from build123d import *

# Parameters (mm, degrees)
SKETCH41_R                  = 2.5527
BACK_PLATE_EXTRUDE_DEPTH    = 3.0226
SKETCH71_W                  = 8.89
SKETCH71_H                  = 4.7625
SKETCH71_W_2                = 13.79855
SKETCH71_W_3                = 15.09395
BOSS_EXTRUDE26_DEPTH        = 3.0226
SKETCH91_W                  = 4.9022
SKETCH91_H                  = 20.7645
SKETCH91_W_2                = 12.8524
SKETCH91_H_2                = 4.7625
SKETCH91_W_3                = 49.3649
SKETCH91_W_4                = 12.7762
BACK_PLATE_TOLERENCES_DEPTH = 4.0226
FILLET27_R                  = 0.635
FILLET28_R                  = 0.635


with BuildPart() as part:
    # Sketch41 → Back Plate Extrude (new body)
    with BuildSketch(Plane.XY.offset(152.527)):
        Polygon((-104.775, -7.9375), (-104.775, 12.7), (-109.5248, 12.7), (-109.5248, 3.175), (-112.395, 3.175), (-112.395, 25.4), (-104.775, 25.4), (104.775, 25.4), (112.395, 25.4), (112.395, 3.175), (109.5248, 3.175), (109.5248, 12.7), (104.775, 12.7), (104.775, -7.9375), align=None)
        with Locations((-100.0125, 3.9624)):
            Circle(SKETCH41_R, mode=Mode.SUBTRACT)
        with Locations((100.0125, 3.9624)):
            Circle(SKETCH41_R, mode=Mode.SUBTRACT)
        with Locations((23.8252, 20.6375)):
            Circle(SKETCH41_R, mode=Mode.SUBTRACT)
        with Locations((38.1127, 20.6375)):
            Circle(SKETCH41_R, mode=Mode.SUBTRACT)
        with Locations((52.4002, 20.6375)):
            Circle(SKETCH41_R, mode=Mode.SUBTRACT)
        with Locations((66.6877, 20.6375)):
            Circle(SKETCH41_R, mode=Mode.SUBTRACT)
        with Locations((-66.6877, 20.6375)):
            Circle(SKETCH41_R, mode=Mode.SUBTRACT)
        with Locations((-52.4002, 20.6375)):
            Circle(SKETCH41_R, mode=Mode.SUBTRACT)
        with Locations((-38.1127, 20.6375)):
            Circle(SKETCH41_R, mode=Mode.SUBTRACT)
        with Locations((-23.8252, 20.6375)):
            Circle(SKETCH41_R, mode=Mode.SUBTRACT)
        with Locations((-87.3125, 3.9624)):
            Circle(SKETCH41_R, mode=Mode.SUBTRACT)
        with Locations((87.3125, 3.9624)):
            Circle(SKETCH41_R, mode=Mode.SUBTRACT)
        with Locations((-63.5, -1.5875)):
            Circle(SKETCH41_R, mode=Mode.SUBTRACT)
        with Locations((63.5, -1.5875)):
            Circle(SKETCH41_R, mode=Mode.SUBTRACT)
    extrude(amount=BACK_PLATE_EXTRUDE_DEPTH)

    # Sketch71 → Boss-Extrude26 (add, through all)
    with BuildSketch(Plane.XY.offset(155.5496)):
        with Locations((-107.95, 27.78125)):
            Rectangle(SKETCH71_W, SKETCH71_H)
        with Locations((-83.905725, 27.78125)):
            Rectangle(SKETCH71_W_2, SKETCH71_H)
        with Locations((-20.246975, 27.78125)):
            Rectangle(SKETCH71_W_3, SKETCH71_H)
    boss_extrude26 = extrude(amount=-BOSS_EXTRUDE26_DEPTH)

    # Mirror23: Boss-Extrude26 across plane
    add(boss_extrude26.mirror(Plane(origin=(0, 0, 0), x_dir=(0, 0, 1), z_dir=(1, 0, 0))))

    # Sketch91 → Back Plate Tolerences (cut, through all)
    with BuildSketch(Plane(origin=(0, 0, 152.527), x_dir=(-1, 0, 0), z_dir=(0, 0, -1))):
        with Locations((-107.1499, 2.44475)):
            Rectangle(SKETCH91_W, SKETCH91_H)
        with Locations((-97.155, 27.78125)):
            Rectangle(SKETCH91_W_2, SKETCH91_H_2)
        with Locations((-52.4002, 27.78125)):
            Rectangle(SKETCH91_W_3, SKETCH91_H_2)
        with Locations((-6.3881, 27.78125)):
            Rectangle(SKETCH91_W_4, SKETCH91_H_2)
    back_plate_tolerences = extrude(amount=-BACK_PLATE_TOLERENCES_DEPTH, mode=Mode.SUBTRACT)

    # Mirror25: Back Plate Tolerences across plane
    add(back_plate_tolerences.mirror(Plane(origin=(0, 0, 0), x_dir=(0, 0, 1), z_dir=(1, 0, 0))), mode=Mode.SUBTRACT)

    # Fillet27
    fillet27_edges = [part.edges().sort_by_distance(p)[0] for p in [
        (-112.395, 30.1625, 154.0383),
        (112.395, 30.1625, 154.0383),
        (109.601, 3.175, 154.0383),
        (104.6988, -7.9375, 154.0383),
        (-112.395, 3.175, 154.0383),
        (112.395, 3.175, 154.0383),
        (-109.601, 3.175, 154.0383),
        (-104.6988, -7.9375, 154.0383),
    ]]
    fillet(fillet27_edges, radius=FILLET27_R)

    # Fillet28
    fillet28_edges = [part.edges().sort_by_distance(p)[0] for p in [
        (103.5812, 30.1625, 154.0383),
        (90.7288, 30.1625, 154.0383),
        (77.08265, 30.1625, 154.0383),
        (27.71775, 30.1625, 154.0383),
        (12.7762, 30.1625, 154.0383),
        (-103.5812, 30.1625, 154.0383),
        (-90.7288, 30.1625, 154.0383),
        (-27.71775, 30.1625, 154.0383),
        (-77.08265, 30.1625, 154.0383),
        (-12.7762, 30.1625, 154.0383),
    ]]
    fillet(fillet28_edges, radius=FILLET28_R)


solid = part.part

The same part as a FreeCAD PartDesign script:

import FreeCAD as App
import Part
import Sketcher

V = App.Vector
Q = App.Units.Quantity


def edges_at(feature, points):
    """Names of the edges that pass closest to the given points."""
    edges = feature.Shape.Edges
    near = lambda p: min(range(len(edges)), key=lambda i: edges[i].distToShape(Part.Vertex(*p))[0])
    return sorted({f"Edge{near(p) + 1}" for p in points})

doc = App.newDocument("Part")
body = doc.addObject("PartDesign::Body", "Body")

# Sketch on XY plane
sketch1 = doc.addObject("Sketcher::SketchObject", "Sketch")
body.addObject(sketch1)
sketch1.AttachmentSupport = (doc.XY_Plane, [""])
sketch1.MapMode = "FlatFace"
sketch1.AttachmentOffset = App.Placement(V(0, 0, 6.005 * 25.4), App.Rotation())
sketch1.addGeometry([
    Part.LineSegment(V(-104.8, 12.7, 0), V(-104.8, -7.9, 0)),  # 0
    Part.LineSegment(V(-104.8, -7.9, 0), V(104.8, -7.9, 0)),  # 1
    Part.LineSegment(V(104.8, -7.9, 0), V(104.8, 12.7, 0)),  # 2
    Part.LineSegment(V(104.8, 12.7, 0), V(109.5, 12.7, 0)),  # 3
    Part.LineSegment(V(109.5, 12.7, 0), V(109.5, 3.2, 0)),  # 4
    Part.LineSegment(V(109.5, 3.2, 0), V(112.4, 3.2, 0)),  # 5
    Part.LineSegment(V(112.4, 3.2, 0), V(112.4, 25.4, 0)),  # 6
    Part.LineSegment(V(112.4, 25.4, 0), V(-112.4, 25.4, 0)),  # 7
    Part.LineSegment(V(-112.4, 25.4, 0), V(-112.4, 3.2, 0)),  # 8
    Part.LineSegment(V(-112.4, 3.2, 0), V(-109.5, 3.2, 0)),  # 9
    Part.LineSegment(V(-109.5, 3.2, 0), V(-109.5, 12.7, 0)),  # 10
    Part.LineSegment(V(-109.5, 12.7, 0), V(-104.8, 12.7, 0)),  # 11
    Part.Circle(V(63.5, -1.6, 0), V(0, 0, 1), 2.6),  # 12
    Part.Circle(V(100, 4, 0), V(0, 0, 1), 2.6),  # 13
    Part.Circle(V(87.3, 4, 0), V(0, 0, 1), 2.6),  # 14
    Part.Circle(V(-63.5, -1.6, 0), V(0, 0, 1), 2.6),  # 15
    Part.Circle(V(-87.3, 4, 0), V(0, 0, 1), 2.6),  # 16
    Part.Circle(V(-100, 4, 0), V(0, 0, 1), 2.6),  # 17
    Part.Circle(V(66.7, 20.6, 0), V(0, 0, 1), 2.6),  # 18
    Part.Circle(V(52.4, 20.6, 0), V(0, 0, 1), 2.6),  # 19
    Part.Circle(V(38.1, 20.6, 0), V(0, 0, 1), 2.6),  # 20
    Part.Circle(V(23.8, 20.6, 0), V(0, 0, 1), 2.6),  # 21
    Part.Circle(V(-23.8, 20.6, 0), V(0, 0, 1), 2.6),  # 22
    Part.Circle(V(-38.1, 20.6, 0), V(0, 0, 1), 2.6),  # 23
    Part.Circle(V(-52.4, 20.6, 0), V(0, 0, 1), 2.6),  # 24
    Part.Circle(V(-66.7, 20.6, 0), V(0, 0, 1), 2.6),  # 25
], False)
sketch1.addConstraint([
    Sketcher.Constraint("Coincident", 0, 2, 1, 1),
    Sketcher.Constraint("Coincident", 1, 2, 2, 1),
    Sketcher.Constraint("Coincident", 2, 2, 3, 1),
    Sketcher.Constraint("Coincident", 3, 2, 4, 1),
    Sketcher.Constraint("Coincident", 4, 2, 5, 1),
    Sketcher.Constraint("Coincident", 5, 2, 6, 1),
    Sketcher.Constraint("Coincident", 6, 2, 7, 1),
    Sketcher.Constraint("Coincident", 7, 2, 8, 1),
    Sketcher.Constraint("Coincident", 8, 2, 9, 1),
    Sketcher.Constraint("Coincident", 9, 2, 10, 1),
    Sketcher.Constraint("Coincident", 10, 2, 11, 1),
    Sketcher.Constraint("Coincident", 11, 2, 0, 1),
    Sketcher.Constraint("Vertical", 0),
    Sketcher.Constraint("Horizontal", 1),
    Sketcher.Constraint("Vertical", 2),
    Sketcher.Constraint("Horizontal", 3),
    Sketcher.Constraint("Vertical", 4),
    Sketcher.Constraint("Horizontal", 5),
    Sketcher.Constraint("Vertical", 6),
    Sketcher.Constraint("Horizontal", 7),
    Sketcher.Constraint("Vertical", 8),
    Sketcher.Constraint("Horizontal", 9),
    Sketcher.Constraint("Vertical", 10),
    Sketcher.Constraint("Horizontal", 11),
    Sketcher.Constraint("Equal", 12, 13),
    Sketcher.Constraint("Equal", 13, 14),
    Sketcher.Constraint("Equal", 14, 15),
    Sketcher.Constraint("Equal", 15, 16),
    Sketcher.Constraint("Equal", 16, 17),
    Sketcher.Constraint("Equal", 17, 18),
    Sketcher.Constraint("Equal", 18, 19),
    Sketcher.Constraint("Equal", 19, 20),
    Sketcher.Constraint("Equal", 20, 21),
    Sketcher.Constraint("Equal", 21, 22),
    Sketcher.Constraint("Equal", 22, 23),
    Sketcher.Constraint("Equal", 23, 24),
    Sketcher.Constraint("Equal", 24, 25),
    Sketcher.Constraint("Symmetric", 12, 3, 15, 3, -2),
    Sketcher.Constraint("Symmetric", 14, 3, 16, 3, -2),
    Sketcher.Constraint("Symmetric", 13, 3, 17, 3, -2),
    Sketcher.Constraint("Symmetric", 21, 3, 22, 3, -2),
    Sketcher.Constraint("Symmetric", 20, 3, 23, 3, -2),
    Sketcher.Constraint("Symmetric", 19, 3, 24, 3, -2),
    Sketcher.Constraint("Symmetric", 18, 3, 25, 3, -2),
    Sketcher.Constraint("Symmetric", 5, 2, 8, 2, -2),
    Sketcher.Constraint("Symmetric", 3, 2, 10, 2, -2),
    Sketcher.Constraint("Horizontal", 13, 3, 14, 3),
    Sketcher.Constraint("Horizontal", 18, 3, 19, 3),
    Sketcher.Constraint("Horizontal", 19, 3, 20, 3),
    Sketcher.Constraint("Horizontal", 20, 3, 21, 3),
    Sketcher.Constraint("Equal", 3, 11),
    Sketcher.Constraint("Diameter", 12, Q("0.201 in")),
    Sketcher.Constraint("DistanceY", -1, 1, 6, 2, Q("1 in")),
    Sketcher.Constraint("DistanceX", 15, 3, 12, 3, Q("5 in")),
    Sketcher.Constraint("DistanceX", 1, 1, 1, 2, Q("8.25 in")),
    Sketcher.Constraint("DistanceX", 7, 2, 7, 1, Q("8.85 in")),
    Sketcher.Constraint("DistanceY", -1, 1, 2, 2, Q("0.5 in")),
    Sketcher.Constraint("DistanceX", 14, 3, 13, 3, Q("0.5 in")),
    Sketcher.Constraint("DistanceX", 3, 1, 3, 2, Q("0.187 in")),
    Sketcher.Constraint("DistanceY", 0, 2, 0, 1, Q("0.8125 in")),
    Sketcher.Constraint("DistanceY", 4, 2, 4, 1, Q("0.375 in")),
    Sketcher.Constraint("DistanceY", 0, 2, 15, 3, Q("0.25 in")),
    Sketcher.Constraint("DistanceX", -1, 1, 13, 3, Q("3.9375 in")),
    Sketcher.Constraint("DistanceY", -1, 1, 13, 3, Q("0.156 in")),
    Sketcher.Constraint("DistanceY", -1, 1, 18, 3, Q("0.8125 in")),
    Sketcher.Constraint("DistanceX", -1, 1, 19, 3, Q("2.063 in")),
    Sketcher.Constraint("DistanceX", -1, 1, 21, 3, Q("0.938 in")),
    Sketcher.Constraint("DistanceX", 18, 3, 14, 3, Q("0.812 in")),
    Sketcher.Constraint("DistanceX", 20, 3, 19, 3, Q("0.5625 in")),
])
pad1 = doc.addObject("PartDesign::Pad", "Pad")
body.addObject(pad1)
pad1.Profile = sketch1
pad1.Length = Q("0.119 in")

# Sketch on XY plane
sketch2 = doc.addObject("Sketcher::SketchObject", "Sketch001")
body.addObject(sketch2)
sketch2.AttachmentSupport = (doc.XY_Plane, [""])
sketch2.MapMode = "FlatFace"
sketch2.AttachmentOffset = App.Placement(V(0, 0, 6.124 * 25.4), App.Rotation())
sketch2.addGeometry([
    Part.LineSegment(V(-112.4, 30.2, 0), V(-112.4, 25.4, 0)),  # 0
    Part.LineSegment(V(-112.4, 25.4, 0), V(-103.5, 25.4, 0)),  # 1
    Part.LineSegment(V(-103.5, 25.4, 0), V(-103.5, 30.2, 0)),  # 2
    Part.LineSegment(V(-103.5, 30.2, 0), V(-112.4, 30.2, 0)),  # 3
    Part.LineSegment(V(-90.8, 30.2, 0), V(-90.8, 25.4, 0)),  # 4
    Part.LineSegment(V(-90.8, 25.4, 0), V(-77, 25.4, 0)),  # 5
    Part.LineSegment(V(-77, 25.4, 0), V(-77, 30.2, 0)),  # 6
    Part.LineSegment(V(-77, 30.2, 0), V(-90.8, 30.2, 0)),  # 7
    Part.LineSegment(V(-27.8, 30.2, 0), V(-27.8, 25.4, 0)),  # 8
    Part.LineSegment(V(-27.8, 25.4, 0), V(-12.7, 25.4, 0)),  # 9
    Part.LineSegment(V(-12.7, 25.4, 0), V(-12.7, 30.2, 0)),  # 10
    Part.LineSegment(V(-12.7, 30.2, 0), V(-27.8, 30.2, 0)),  # 11
], False)
sketch2.addConstraint([
    Sketcher.Constraint("Coincident", 0, 2, 1, 1),
    Sketcher.Constraint("Coincident", 1, 2, 2, 1),
    Sketcher.Constraint("Coincident", 2, 2, 3, 1),
    Sketcher.Constraint("Coincident", 3, 2, 0, 1),
    Sketcher.Constraint("Coincident", 4, 2, 5, 1),
    Sketcher.Constraint("Coincident", 5, 2, 6, 1),
    Sketcher.Constraint("Coincident", 6, 2, 7, 1),
    Sketcher.Constraint("Coincident", 7, 2, 4, 1),
    Sketcher.Constraint("Coincident", 8, 2, 9, 1),
    Sketcher.Constraint("Coincident", 9, 2, 10, 1),
    Sketcher.Constraint("Coincident", 10, 2, 11, 1),
    Sketcher.Constraint("Coincident", 11, 2, 8, 1),
    Sketcher.Constraint("Vertical", 0),
    Sketcher.Constraint("Horizontal", 1),
    Sketcher.Constraint("Vertical", 2),
    Sketcher.Constraint("Horizontal", 3),
    Sketcher.Constraint("Vertical", 4),
    Sketcher.Constraint("Horizontal", 5),
    Sketcher.Constraint("Vertical", 6),
    Sketcher.Constraint("Horizontal", 7),
    Sketcher.Constraint("Vertical", 8),
    Sketcher.Constraint("Horizontal", 9),
    Sketcher.Constraint("Vertical", 10),
    Sketcher.Constraint("Horizontal", 11),
    Sketcher.Constraint("Horizontal", 1, 2, 4, 2),
    Sketcher.Constraint("Horizontal", 3, 2, 6, 2),
    Sketcher.Constraint("Horizontal", 5, 2, 8, 2),
    Sketcher.Constraint("Horizontal", 7, 2, 10, 2),
    Sketcher.Constraint("DistanceY", -1, 1, 0, 2, Q("1 in")),
    Sketcher.Constraint("DistanceX", 1, 1, 1, 2, Q("0.35 in")),
    Sketcher.Constraint("DistanceX", 9, 2, -1, 1, Q("0.5 in")),
    Sketcher.Constraint("DistanceX", 1, 2, 4, 2, Q("0.5 in")),
    Sketcher.Constraint("DistanceY", 0, 2, 0, 1, Q("0.1875 in")),
    Sketcher.Constraint("DistanceX", 0, 2, -1, 1, Q("4.425 in")),
    Sketcher.Constraint("DistanceX", 5, 2, 8, 2, Q("1.9375 in")),
    Sketcher.Constraint("DistanceX", 5, 1, 5, 2, 13.79855),
])
pad2 = doc.addObject("PartDesign::Pad", "Pad001")
body.addObject(pad2)
pad2.Profile = sketch2
pad2.Length = Q("0.119 in")
pad2.Reversed = True
doc.recompute()

mirrored = doc.addObject("PartDesign::Mirrored", "Mirrored")
body.addObject(mirrored)
mirrored.Originals = [pad2]
mirrored.MirrorPlane = (doc.YZ_Plane, [""])
body.Tip = mirrored

# Sketch on XY plane
sketch3 = doc.addObject("Sketcher::SketchObject", "Sketch002")
body.addObject(sketch3)
sketch3.AttachmentSupport = (doc.XY_Plane, [""])
sketch3.MapMode = "FlatFace"
sketch3.AttachmentOffset = App.Placement(V(0, 0, 6.005 * 25.4), App.Rotation())
sketch3.addGeometry([
    Part.LineSegment(V(109.6, 12.8, 0), V(109.6, -7.9, 0)),  # 0
    Part.LineSegment(V(109.6, -7.9, 0), V(104.7, -7.9, 0)),  # 1
    Part.LineSegment(V(104.7, -7.9, 0), V(104.7, 12.8, 0)),  # 2
    Part.LineSegment(V(104.7, 12.8, 0), V(109.6, 12.8, 0)),  # 3
    Part.LineSegment(V(103.6, 30.2, 0), V(103.6, 25.4, 0)),  # 4
    Part.LineSegment(V(103.6, 25.4, 0), V(90.7, 25.4, 0)),  # 5
    Part.LineSegment(V(90.7, 25.4, 0), V(90.7, 30.2, 0)),  # 6
    Part.LineSegment(V(90.7, 30.2, 0), V(103.6, 30.2, 0)),  # 7
    Part.LineSegment(V(77.1, 30.2, 0), V(77.1, 25.4, 0)),  # 8
    Part.LineSegment(V(77.1, 25.4, 0), V(27.7, 25.4, 0)),  # 9
    Part.LineSegment(V(27.7, 25.4, 0), V(27.7, 30.2, 0)),  # 10
    Part.LineSegment(V(27.7, 30.2, 0), V(77.1, 30.2, 0)),  # 11
    Part.LineSegment(V(12.8, 30.2, 0), V(12.8, 25.4, 0)),  # 12
    Part.LineSegment(V(12.8, 25.4, 0), V(0, 25.4, 0)),  # 13
    Part.LineSegment(V(0, 25.4, 0), V(0, 30.2, 0)),  # 14
    Part.LineSegment(V(0, 30.2, 0), V(12.8, 30.2, 0)),  # 15
], False)
sketch3.addConstraint([
    Sketcher.Constraint("Coincident", 0, 2, 1, 1),
    Sketcher.Constraint("Coincident", 1, 2, 2, 1),
    Sketcher.Constraint("Coincident", 2, 2, 3, 1),
    Sketcher.Constraint("Coincident", 3, 2, 0, 1),
    Sketcher.Constraint("Coincident", 4, 2, 5, 1),
    Sketcher.Constraint("Coincident", 5, 2, 6, 1),
    Sketcher.Constraint("Coincident", 6, 2, 7, 1),
    Sketcher.Constraint("Coincident", 7, 2, 4, 1),
    Sketcher.Constraint("Coincident", 8, 2, 9, 1),
    Sketcher.Constraint("Coincident", 9, 2, 10, 1),
    Sketcher.Constraint("Coincident", 10, 2, 11, 1),
    Sketcher.Constraint("Coincident", 11, 2, 8, 1),
    Sketcher.Constraint("Coincident", 12, 2, 13, 1),
    Sketcher.Constraint("Coincident", 13, 2, 14, 1),
    Sketcher.Constraint("Coincident", 14, 2, 15, 1),
    Sketcher.Constraint("Coincident", 15, 2, 12, 1),
    Sketcher.Constraint("Vertical", 0),
    Sketcher.Constraint("Horizontal", 1),
    Sketcher.Constraint("Vertical", 2),
    Sketcher.Constraint("Horizontal", 3),
    Sketcher.Constraint("Vertical", 4),
    Sketcher.Constraint("Horizontal", 5),
    Sketcher.Constraint("Vertical", 6),
    Sketcher.Constraint("Horizontal", 7),
    Sketcher.Constraint("Vertical", 8),
    Sketcher.Constraint("Horizontal", 9),
    Sketcher.Constraint("Vertical", 10),
    Sketcher.Constraint("Horizontal", 11),
    Sketcher.Constraint("Vertical", 12),
    Sketcher.Constraint("Horizontal", 13),
    Sketcher.Constraint("Vertical", 14),
    Sketcher.Constraint("Horizontal", 15),
    Sketcher.Constraint("PointOnObject", 13, 2, -2),
    Sketcher.Constraint("Horizontal", 5, 2, 8, 2),
    Sketcher.Constraint("Horizontal", 7, 2, 10, 2),
    Sketcher.Constraint("Horizontal", 9, 2, 12, 2),
    Sketcher.Constraint("Horizontal", 11, 2, 14, 2),
    Sketcher.Constraint("DistanceY", -1, 1, 4, 2, Q("1 in")),
    Sketcher.Constraint("DistanceY", 1, 2, 6, 2, Q("1.5 in")),
    Sketcher.Constraint("DistanceX", 1, 2, 1, 1, Q("0.193 in")),
    Sketcher.Constraint("DistanceX", 5, 2, 5, 1, Q("0.506 in")),
    Sketcher.Constraint("DistanceX", 13, 2, 13, 1, Q("0.503 in")),
    Sketcher.Constraint("DistanceY", 4, 2, 4, 1, Q("0.1875 in")),
    Sketcher.Constraint("DistanceX", 5, 2, 2, 2, Q("0.55 in")),
    Sketcher.Constraint("DistanceX", 9, 2, 9, 1, Q("1.9435 in")),
    Sketcher.Constraint("DistanceY", 0, 2, 0, 1, Q("0.8175 in")),
    Sketcher.Constraint("DistanceX", -1, 1, 0, 2, Q("4.315 in")),
    Sketcher.Constraint("DistanceX", -1, 1, 8, 2, 77.08265),
])
pocket1 = doc.addObject("PartDesign::Pocket", "Pocket")
body.addObject(pocket1)
pocket1.Profile = sketch3
pocket1.Type = "ThroughAll"
pocket1.Reversed = True
doc.recompute()

mirrored2 = doc.addObject("PartDesign::Mirrored", "Mirrored001")
body.addObject(mirrored2)
mirrored2.Originals = [pocket1]
mirrored2.MirrorPlane = (doc.YZ_Plane, [""])
body.Tip = mirrored2
doc.recompute()

fillet = doc.addObject("PartDesign::Fillet", "Fillet")
body.addObject(fillet)
fillet.Base = (mirrored2, edges_at(mirrored2, [
    (-112.395, 30.163, 154.038),
    (112.395, 30.163, 154.038),
    (109.601, 3.175, 154.038),
    (104.699, -7.938, 154.038),
    (-112.395, 3.175, 154.038),
    (112.395, 3.175, 154.038),
    (-109.601, 3.175, 154.038),
    (-104.699, -7.938, 154.038),
]))
fillet.Radius = Q("0.025 in")
doc.recompute()

fillet2 = doc.addObject("PartDesign::Fillet", "Fillet001")
body.addObject(fillet2)
fillet2.Base = (fillet, edges_at(fillet, [
    (103.581, 30.163, 154.038),
    (90.729, 30.163, 154.038),
    (77.083, 30.163, 154.038),
    (27.718, 30.163, 154.038),
    (12.776, 30.163, 154.038),
    (-103.581, 30.163, 154.038),
    (-90.729, 30.163, 154.038),
    (-27.718, 30.163, 154.038),
    (-77.083, 30.163, 154.038),
    (-12.776, 30.163, 154.038),
]))
fillet2.Radius = Q("0.025 in")

doc.recompute()
